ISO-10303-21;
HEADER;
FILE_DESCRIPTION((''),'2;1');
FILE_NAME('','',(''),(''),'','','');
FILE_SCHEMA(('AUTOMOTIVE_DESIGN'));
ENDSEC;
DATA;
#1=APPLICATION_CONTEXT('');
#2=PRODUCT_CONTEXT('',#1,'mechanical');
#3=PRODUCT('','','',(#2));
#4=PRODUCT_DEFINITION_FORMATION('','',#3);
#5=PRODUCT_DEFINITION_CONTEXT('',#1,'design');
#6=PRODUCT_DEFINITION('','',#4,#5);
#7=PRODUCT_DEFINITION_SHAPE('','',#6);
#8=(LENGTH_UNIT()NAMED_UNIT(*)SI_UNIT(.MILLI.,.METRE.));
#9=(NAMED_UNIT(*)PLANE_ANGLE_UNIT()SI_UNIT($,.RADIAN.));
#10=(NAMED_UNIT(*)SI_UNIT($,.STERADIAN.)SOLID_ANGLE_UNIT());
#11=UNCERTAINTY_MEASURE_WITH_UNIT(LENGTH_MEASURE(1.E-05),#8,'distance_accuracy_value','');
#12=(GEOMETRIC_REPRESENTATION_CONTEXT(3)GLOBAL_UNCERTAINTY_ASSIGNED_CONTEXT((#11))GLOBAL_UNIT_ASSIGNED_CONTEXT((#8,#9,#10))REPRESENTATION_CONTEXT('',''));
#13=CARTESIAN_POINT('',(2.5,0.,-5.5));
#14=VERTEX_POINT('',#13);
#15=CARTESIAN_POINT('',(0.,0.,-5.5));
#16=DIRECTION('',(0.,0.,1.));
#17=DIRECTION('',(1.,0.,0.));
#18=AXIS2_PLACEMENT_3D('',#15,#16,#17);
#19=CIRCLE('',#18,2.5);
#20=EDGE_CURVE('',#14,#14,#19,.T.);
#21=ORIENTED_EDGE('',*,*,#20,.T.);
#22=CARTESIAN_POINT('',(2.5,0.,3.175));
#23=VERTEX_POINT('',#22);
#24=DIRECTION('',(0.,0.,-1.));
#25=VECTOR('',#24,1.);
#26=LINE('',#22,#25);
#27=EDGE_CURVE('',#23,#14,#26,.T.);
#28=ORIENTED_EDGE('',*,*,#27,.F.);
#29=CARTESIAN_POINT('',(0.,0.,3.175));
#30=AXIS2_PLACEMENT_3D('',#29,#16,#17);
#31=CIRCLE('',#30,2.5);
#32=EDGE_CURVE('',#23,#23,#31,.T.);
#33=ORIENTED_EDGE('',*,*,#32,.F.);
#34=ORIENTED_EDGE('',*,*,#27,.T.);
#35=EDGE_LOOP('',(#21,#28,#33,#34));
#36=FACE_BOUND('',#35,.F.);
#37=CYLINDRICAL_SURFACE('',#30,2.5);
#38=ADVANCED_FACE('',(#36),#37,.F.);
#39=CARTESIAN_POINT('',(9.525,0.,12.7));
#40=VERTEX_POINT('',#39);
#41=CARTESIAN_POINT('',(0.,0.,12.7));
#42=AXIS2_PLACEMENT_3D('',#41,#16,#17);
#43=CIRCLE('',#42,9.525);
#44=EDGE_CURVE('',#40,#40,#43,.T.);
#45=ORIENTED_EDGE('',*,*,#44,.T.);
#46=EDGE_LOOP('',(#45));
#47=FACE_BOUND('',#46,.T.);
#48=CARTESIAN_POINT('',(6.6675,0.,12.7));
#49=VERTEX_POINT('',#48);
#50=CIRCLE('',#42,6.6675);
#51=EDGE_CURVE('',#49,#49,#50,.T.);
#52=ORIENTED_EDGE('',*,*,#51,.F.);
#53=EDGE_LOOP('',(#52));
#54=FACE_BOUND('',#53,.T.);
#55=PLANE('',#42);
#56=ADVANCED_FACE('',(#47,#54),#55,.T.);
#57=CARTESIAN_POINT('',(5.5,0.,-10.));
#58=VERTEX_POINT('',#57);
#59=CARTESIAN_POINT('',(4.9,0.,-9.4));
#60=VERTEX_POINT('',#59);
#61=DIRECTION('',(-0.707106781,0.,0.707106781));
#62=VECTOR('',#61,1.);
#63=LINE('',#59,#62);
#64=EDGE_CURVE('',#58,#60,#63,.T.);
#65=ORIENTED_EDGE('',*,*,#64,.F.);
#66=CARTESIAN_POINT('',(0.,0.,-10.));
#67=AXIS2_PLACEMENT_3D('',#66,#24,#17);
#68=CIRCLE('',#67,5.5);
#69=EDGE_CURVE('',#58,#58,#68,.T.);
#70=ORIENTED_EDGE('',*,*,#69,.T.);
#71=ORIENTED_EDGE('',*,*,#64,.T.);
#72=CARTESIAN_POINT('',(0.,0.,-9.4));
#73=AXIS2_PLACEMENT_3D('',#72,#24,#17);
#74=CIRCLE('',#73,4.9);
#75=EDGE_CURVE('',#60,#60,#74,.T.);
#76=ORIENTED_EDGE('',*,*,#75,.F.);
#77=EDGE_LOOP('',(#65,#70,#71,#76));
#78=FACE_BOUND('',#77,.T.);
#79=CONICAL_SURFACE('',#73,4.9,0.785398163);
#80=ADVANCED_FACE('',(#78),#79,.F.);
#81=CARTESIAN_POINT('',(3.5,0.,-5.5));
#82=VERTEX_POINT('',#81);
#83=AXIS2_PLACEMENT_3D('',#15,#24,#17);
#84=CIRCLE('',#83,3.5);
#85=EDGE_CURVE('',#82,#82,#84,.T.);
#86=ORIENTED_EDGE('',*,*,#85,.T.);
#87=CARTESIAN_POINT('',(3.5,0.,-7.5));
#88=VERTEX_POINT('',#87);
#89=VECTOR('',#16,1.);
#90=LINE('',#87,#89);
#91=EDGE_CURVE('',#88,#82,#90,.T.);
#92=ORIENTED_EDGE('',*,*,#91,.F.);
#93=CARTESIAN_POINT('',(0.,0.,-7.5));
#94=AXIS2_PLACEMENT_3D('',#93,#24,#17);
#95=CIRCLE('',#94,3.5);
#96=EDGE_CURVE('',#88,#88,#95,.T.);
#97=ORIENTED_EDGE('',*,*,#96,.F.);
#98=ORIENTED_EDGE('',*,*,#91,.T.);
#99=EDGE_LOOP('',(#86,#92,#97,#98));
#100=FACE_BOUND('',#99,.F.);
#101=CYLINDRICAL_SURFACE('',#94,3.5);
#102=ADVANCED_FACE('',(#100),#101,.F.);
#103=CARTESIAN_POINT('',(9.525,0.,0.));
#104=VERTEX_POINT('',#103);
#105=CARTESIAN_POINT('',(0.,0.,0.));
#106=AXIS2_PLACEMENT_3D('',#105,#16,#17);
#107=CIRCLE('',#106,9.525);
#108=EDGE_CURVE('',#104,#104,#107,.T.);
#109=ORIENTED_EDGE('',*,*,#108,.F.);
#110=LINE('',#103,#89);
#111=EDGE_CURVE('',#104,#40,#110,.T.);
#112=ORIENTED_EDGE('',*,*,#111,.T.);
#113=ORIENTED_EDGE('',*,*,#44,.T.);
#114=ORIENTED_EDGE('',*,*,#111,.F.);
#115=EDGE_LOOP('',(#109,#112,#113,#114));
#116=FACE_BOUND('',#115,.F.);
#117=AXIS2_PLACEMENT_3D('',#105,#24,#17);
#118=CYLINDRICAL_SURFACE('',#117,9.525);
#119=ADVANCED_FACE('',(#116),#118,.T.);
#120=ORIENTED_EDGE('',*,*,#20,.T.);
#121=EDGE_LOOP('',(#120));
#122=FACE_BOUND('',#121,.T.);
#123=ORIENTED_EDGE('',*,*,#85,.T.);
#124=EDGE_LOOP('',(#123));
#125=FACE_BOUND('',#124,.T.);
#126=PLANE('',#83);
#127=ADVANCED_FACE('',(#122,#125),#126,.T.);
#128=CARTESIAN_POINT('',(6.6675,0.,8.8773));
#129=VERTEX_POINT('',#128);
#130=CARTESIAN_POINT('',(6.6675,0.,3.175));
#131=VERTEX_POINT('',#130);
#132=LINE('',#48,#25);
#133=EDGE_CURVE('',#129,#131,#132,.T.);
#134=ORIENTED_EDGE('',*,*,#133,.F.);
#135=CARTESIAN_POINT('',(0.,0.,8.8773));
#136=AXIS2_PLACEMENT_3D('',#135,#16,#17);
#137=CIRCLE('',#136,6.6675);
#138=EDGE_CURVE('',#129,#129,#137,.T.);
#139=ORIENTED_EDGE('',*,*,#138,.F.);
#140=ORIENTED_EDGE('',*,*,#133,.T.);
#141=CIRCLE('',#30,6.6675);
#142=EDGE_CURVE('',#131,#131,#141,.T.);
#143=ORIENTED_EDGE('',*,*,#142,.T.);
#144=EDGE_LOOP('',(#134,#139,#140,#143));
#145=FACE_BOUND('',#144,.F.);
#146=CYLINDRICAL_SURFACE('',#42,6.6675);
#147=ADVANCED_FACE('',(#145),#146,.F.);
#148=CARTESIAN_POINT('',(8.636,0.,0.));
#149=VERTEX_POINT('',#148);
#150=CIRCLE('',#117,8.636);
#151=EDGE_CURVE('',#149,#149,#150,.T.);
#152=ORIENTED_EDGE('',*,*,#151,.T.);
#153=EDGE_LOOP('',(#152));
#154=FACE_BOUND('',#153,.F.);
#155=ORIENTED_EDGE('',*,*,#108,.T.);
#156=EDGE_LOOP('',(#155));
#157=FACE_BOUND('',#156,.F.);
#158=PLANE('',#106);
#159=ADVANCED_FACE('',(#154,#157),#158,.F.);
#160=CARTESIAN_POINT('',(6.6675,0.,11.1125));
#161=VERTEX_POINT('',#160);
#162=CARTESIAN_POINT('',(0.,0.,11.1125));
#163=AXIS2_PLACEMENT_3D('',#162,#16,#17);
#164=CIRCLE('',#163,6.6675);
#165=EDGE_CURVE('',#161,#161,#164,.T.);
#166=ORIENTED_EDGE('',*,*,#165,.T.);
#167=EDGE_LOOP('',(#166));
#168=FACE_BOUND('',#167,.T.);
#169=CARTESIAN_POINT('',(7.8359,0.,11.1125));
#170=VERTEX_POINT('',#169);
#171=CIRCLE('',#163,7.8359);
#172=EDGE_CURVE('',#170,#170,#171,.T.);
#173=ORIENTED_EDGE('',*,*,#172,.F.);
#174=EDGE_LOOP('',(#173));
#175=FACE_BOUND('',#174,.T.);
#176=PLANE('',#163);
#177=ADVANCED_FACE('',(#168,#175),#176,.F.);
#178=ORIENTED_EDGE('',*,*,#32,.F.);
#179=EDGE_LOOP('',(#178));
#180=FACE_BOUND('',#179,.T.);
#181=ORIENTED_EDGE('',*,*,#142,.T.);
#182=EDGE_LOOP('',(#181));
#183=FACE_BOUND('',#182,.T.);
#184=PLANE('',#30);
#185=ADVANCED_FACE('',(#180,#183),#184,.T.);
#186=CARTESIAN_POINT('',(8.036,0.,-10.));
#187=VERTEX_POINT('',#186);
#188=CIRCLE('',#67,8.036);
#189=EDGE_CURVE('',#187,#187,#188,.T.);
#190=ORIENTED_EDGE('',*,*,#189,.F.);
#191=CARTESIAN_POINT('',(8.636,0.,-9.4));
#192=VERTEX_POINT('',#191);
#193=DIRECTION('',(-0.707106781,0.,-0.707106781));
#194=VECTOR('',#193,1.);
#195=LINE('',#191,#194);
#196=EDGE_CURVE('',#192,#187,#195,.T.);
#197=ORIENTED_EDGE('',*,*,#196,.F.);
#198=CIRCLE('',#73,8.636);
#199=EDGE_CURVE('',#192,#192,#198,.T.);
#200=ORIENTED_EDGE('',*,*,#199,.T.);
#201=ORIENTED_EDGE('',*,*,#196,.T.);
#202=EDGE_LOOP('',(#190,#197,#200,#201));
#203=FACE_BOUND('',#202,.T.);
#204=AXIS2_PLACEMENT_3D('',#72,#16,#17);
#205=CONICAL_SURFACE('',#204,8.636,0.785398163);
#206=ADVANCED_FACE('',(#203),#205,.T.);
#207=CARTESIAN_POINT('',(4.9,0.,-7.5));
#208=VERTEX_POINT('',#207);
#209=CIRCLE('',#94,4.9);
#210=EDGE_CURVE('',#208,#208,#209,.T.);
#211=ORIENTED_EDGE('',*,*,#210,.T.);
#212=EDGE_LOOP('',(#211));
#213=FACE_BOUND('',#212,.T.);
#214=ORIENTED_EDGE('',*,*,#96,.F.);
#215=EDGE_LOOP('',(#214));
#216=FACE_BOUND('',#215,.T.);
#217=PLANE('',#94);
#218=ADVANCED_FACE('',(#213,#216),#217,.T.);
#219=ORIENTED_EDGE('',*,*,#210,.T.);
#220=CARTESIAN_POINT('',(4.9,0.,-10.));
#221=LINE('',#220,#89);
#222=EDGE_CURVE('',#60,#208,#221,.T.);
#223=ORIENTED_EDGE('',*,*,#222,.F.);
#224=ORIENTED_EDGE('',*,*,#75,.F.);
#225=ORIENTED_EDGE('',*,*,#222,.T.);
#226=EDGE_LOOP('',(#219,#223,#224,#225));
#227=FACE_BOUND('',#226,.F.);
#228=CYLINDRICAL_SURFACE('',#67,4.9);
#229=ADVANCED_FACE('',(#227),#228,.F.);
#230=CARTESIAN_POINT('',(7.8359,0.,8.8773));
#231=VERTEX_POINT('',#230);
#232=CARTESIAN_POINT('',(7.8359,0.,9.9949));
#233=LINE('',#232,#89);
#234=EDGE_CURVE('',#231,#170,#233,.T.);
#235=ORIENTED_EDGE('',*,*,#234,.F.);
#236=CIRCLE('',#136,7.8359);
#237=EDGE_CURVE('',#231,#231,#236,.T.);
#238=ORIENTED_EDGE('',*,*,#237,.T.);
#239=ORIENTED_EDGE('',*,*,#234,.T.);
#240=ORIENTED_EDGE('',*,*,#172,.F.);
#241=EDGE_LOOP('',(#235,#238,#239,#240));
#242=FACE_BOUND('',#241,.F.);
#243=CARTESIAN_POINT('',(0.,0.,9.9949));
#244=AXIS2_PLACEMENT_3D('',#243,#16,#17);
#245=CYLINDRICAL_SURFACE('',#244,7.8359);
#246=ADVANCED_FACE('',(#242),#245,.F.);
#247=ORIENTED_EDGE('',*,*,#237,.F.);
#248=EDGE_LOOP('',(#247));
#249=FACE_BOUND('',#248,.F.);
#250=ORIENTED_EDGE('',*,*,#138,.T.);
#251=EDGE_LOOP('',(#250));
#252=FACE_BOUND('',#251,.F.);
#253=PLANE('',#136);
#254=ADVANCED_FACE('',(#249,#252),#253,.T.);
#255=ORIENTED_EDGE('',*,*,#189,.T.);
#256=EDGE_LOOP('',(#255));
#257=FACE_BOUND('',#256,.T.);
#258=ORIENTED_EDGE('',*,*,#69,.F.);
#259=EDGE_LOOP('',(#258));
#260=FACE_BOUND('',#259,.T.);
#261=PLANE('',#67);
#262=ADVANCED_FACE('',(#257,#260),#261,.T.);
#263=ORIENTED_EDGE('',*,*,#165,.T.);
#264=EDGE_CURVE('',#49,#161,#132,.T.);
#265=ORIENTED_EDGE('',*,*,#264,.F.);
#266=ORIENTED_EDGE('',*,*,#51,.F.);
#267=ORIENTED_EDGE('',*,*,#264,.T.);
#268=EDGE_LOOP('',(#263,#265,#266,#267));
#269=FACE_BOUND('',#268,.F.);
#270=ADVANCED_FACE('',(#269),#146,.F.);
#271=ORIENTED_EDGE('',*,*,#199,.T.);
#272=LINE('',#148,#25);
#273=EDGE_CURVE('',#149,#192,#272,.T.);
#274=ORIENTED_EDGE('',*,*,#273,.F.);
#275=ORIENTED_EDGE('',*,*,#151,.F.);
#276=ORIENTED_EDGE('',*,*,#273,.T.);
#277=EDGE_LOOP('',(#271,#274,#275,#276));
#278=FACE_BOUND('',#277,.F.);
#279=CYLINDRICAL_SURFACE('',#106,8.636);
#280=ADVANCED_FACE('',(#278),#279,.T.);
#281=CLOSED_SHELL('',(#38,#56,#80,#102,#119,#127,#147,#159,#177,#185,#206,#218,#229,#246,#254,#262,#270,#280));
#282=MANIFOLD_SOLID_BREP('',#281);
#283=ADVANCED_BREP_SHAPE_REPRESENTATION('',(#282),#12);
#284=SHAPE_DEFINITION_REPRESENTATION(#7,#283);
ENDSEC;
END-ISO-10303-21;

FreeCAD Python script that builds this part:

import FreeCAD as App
import Part
import Sketcher
from FreeCAD import Vector
Q = App.Units.Quantity


def edges_at(feature, points):
    """Names of the edges that pass closest to the given points."""
    edges = feature.Shape.Edges
    near = lambda p: min(range(len(edges)), key=lambda i: edges[i].distToShape(Part.Vertex(*p))[0])
    return sorted({f"Edge{near(p) + 1}" for p in points})

doc = App.newDocument("Part")
body = doc.addObject("PartDesign::Body", "Body")

# Sketch on XY plane
sketch1 = doc.addObject("Sketcher::SketchObject", "Sketch")
body.addObject(sketch1)
sketch1.AttachmentSupport = (doc.XY_Plane, [""])
sketch1.MapMode = "FlatFace"
sketch1.addGeometry(Part.Circle(Vector(0, 0, 0), Vector(0, 0, 1), 9.525), False)
sketch1.addConstraint([
    Sketcher.Constraint("Coincident", 0, 3, -1, 1),
    Sketcher.Constraint("Diameter", 0, Q("0.75 in")),
])
pad1 = doc.addObject("PartDesign::Pad", "Pad")
body.addObject(pad1)
pad1.Profile = sketch1
pad1.Length = Q("0.5 in")

# Sketch on XY plane
sketch2 = doc.addObject("Sketcher::SketchObject", "Sketch001")
body.addObject(sketch2)
sketch2.AttachmentSupport = (doc.XY_Plane, [""])
sketch2.MapMode = "FlatFace"
sketch2.AttachmentOffset = App.Placement(Vector(0, 0, 0.5 * 25.4), App.Rotation())
sketch2.addGeometry(Part.Circle(Vector(0, 0, 0), Vector(0, 0, 1), 6.6675), False)
sketch2.addConstraint([
    Sketcher.Constraint("Coincident", 0, 3, -1, 1),
    Sketcher.Constraint("Diameter", 0, Q("0.525 in")),
])
pocket1 = doc.addObject("PartDesign::Pocket", "Pocket")
body.addObject(pocket1)
pocket1.Profile = sketch2
pocket1.Length = Q("0.375 in")

# Sketch on XZ plane
sketch3 = doc.addObject("Sketcher::SketchObject", "Sketch002")
body.addObject(sketch3)
sketch3.AttachmentSupport = (doc.XZ_Plane, [""])
sketch3.MapMode = "FlatFace"
sketch3.addGeometry([
    Part.LineSegment(Vector(6.6675, 11.1125, 0), Vector(6.6675, 8.8773, 0)),
    Part.LineSegment(Vector(6.6675, 8.8773, 0), Vector(7.8359, 8.8773, 0)),
    Part.LineSegment(Vector(7.8359, 8.8773, 0), Vector(7.8359, 11.1125, 0)),
    Part.LineSegment(Vector(7.8359, 11.1125, 0), Vector(6.6675, 11.1125, 0)),
], False)
sketch3.addConstraint([
    Sketcher.Constraint("Coincident", 0, 2, 1, 1),
    Sketcher.Constraint("Coincident", 1, 2, 2, 1),
    Sketcher.Constraint("Coincident", 2, 2, 3, 1),
    Sketcher.Constraint("Coincident", 3, 2, 0, 1),
    Sketcher.Constraint("Vertical", 0),
    Sketcher.Constraint("Horizontal", 1),
    Sketcher.Constraint("Vertical", 2),
    Sketcher.Constraint("Horizontal", 3),
    Sketcher.Constraint("DistanceX", 1, 1, 1, 2, Q("0.046 in")),
    Sketcher.Constraint("DistanceY", 0, 2, 0, 1, Q("0.088 in")),
    Sketcher.Constraint("DistanceY", -1, 1, 2, 2, Q("0.4375 in")),
    Sketcher.Constraint("DistanceX", -1, 1, 0, 2, Q("0.2625 in")),
])
groove = doc.addObject("PartDesign::Groove", "Groove")
body.addObject(groove)
groove.Profile = sketch3
groove.ReferenceAxis = (sketch3, ["V_Axis"])
groove.Angle = 360

# Sketch on XY plane
sketch4 = doc.addObject("Sketcher::SketchObject", "Sketch003")
body.addObject(sketch4)
sketch4.AttachmentSupport = (doc.XY_Plane, [""])
sketch4.MapMode = "FlatFace"
sketch4.addGeometry(Part.Circle(Vector(0, 0, 0), Vector(0, 0, 1), 8.636), False)
sketch4.addConstraint([
    Sketcher.Constraint("Coincident", 0, 3, -1, 1),
    Sketcher.Constraint("Diameter", 0, Q("0.68 in")),
])
pad2 = doc.addObject("PartDesign::Pad", "Pad001")
body.addObject(pad2)
pad2.Profile = sketch4
pad2.Length = 10
pad2.Reversed = True

# Sketch on XY plane
sketch5 = doc.addObject("Sketcher::SketchObject", "Sketch004")
body.addObject(sketch5)
sketch5.AttachmentSupport = (doc.XY_Plane, [""])
sketch5.MapMode = "FlatFace"
sketch5.AttachmentOffset = App.Placement(Vector(0, 0, -10), App.Rotation())
sketch5.addGeometry(Part.Circle(Vector(0, 0, 0), Vector(0, 0, 1), 4.9), False)
sketch5.addConstraint([
    Sketcher.Constraint("Coincident", 0, 3, -1, 1),
    Sketcher.Constraint("Diameter", 0, Q("9.8 mm")),
])
pocket2 = doc.addObject("PartDesign::Pocket", "Pocket001")
body.addObject(pocket2)
pocket2.Profile = sketch5
pocket2.Length = 2.5
pocket2.Reversed = True

# Sketch on XY plane
sketch6 = doc.addObject("Sketcher::SketchObject", "Sketch005")
body.addObject(sketch6)
sketch6.AttachmentSupport = (doc.XY_Plane, [""])
sketch6.MapMode = "FlatFace"
sketch6.AttachmentOffset = App.Placement(Vector(0, 0, 0.125 * 25.4), App.Rotation())
sketch6.addGeometry(Part.Circle(Vector(0, 0, 0), Vector(0, 0, 1), 2.5), False)
sketch6.addConstraint([
    Sketcher.Constraint("Coincident", 0, 3, -1, 1),
    Sketcher.Constraint("Diameter", 0, Q("5 mm")),
])
pocket3 = doc.addObject("PartDesign::Pocket", "Pocket002")
body.addObject(pocket3)
pocket3.Profile = sketch6
pocket3.Length = Q("1 in")

# Sketch on XY plane
sketch7 = doc.addObject("Sketcher::SketchObject", "Sketch006")
body.addObject(sketch7)
sketch7.AttachmentSupport = (doc.XY_Plane, [""])
sketch7.MapMode = "FlatFace"
sketch7.AttachmentOffset = App.Placement(Vector(0, 0, -7.5), App.Rotation())
sketch7.addGeometry(Part.Circle(Vector(0, 0, 0), Vector(0, 0, 1), 3.5), False)
sketch7.addConstraint([
    Sketcher.Constraint("Coincident", 0, 3, -1, 1),
    Sketcher.Constraint("Diameter", 0, Q("7 mm")),
])
pocket4 = doc.addObject("PartDesign::Pocket", "Pocket003")
body.addObject(pocket4)
pocket4.Profile = sketch7
pocket4.Length = 2
pocket4.Reversed = True
doc.recompute()

chamfer = doc.addObject("PartDesign::Chamfer", "Chamfer")
body.addObject(chamfer)
chamfer.Base = (pocket4, edges_at(pocket4, [(-4.9, 0, -10), (-8.636, 0, -10)]))
chamfer.Size = 0.6

doc.recompute()
